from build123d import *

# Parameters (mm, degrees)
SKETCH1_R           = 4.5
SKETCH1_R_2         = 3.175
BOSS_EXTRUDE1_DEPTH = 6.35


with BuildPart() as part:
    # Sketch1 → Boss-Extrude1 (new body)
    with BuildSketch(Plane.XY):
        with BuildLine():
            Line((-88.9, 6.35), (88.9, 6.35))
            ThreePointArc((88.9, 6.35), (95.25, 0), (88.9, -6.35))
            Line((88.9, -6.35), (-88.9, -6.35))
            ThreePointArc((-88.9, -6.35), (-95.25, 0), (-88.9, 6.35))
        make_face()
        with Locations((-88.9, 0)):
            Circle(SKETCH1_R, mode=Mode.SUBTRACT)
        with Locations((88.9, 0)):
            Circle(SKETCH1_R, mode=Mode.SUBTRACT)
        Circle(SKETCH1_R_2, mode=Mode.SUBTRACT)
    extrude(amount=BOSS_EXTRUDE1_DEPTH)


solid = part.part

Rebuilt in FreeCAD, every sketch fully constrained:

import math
import FreeCAD as App
import Part
import Sketcher
Q = App.Units.Quantity

doc = App.newDocument("Part")
body = doc.addObject("PartDesign::Body", "Body")

# Sketch on XY plane
sketch1 = body.newObject("Sketcher::SketchObject", "Sketch")
sketch1.AttachmentSupport = (doc.getObject("XY_Plane"), [""])
sketch1.MapMode = "FlatFace"
sketch1.addGeometry([
    Part.LineSegment(App.Vector(88.9, 6.3, 0), App.Vector(-88.9, 6.3, 0)),  # 0
    Part.ArcOfCircle(Part.Circle(App.Vector(-88.9, 0, 0), App.Vector(0, 0, 1), 6.3), math.radians(90), math.radians(270)),  # 1
    Part.LineSegment(App.Vector(-88.9, -6.3, 0), App.Vector(88.9, -6.3, 0)),  # 2
    Part.ArcOfCircle(Part.Circle(App.Vector(88.9, 0, 0), App.Vector(0, 0, 1), 6.3), math.radians(-90), math.radians(90)),  # 3
    Part.Circle(App.Vector(88.9, 0, 0), App.Vector(0, 0, 1), 4.5),  # 4
    Part.Circle(App.Vector(0, 0, 0), App.Vector(0, 0, 1), 3.2),  # 5
    Part.Circle(App.Vector(-88.9, 0, 0), App.Vector(0, 0, 1), 4.5),  # 6
], False)
sketch1.addConstraint([
    Sketcher.Constraint("Tangent", 0, 2, 1, 1),
    Sketcher.Constraint("Tangent", 1, 2, 2, 1),
    Sketcher.Constraint("Tangent", 2, 2, 3, 1),
    Sketcher.Constraint("Tangent", 3, 2, 0, 1),
    Sketcher.Constraint("Horizontal", 0),
    Sketcher.Constraint("Horizontal", 2),
    Sketcher.Constraint("Coincident", 5, 3, -1, 1),
    Sketcher.Constraint("Coincident", 4, 3, 3, 3),
    Sketcher.Constraint("Coincident", 6, 3, 1, 3),
    Sketcher.Constraint("Equal", 4, 6),
    Sketcher.Constraint("Symmetric", 1, 3, 3, 3, -1, 1),
    Sketcher.Constraint("Diameter", 5, Q("0.25 in")),
    Sketcher.Constraint("DistanceX", 0, 2, 0, 1, Q("7 in")),
    Sketcher.Constraint("Radius", 1, Q("0.25 in")),
    Sketcher.Constraint("Diameter", 4, Q("9 mm")),
])
pad1 = body.newObject("PartDesign::Pad", "Pad")
pad1.Profile = sketch1
pad1.Length = Q("0.25 in")

doc.recompute()
